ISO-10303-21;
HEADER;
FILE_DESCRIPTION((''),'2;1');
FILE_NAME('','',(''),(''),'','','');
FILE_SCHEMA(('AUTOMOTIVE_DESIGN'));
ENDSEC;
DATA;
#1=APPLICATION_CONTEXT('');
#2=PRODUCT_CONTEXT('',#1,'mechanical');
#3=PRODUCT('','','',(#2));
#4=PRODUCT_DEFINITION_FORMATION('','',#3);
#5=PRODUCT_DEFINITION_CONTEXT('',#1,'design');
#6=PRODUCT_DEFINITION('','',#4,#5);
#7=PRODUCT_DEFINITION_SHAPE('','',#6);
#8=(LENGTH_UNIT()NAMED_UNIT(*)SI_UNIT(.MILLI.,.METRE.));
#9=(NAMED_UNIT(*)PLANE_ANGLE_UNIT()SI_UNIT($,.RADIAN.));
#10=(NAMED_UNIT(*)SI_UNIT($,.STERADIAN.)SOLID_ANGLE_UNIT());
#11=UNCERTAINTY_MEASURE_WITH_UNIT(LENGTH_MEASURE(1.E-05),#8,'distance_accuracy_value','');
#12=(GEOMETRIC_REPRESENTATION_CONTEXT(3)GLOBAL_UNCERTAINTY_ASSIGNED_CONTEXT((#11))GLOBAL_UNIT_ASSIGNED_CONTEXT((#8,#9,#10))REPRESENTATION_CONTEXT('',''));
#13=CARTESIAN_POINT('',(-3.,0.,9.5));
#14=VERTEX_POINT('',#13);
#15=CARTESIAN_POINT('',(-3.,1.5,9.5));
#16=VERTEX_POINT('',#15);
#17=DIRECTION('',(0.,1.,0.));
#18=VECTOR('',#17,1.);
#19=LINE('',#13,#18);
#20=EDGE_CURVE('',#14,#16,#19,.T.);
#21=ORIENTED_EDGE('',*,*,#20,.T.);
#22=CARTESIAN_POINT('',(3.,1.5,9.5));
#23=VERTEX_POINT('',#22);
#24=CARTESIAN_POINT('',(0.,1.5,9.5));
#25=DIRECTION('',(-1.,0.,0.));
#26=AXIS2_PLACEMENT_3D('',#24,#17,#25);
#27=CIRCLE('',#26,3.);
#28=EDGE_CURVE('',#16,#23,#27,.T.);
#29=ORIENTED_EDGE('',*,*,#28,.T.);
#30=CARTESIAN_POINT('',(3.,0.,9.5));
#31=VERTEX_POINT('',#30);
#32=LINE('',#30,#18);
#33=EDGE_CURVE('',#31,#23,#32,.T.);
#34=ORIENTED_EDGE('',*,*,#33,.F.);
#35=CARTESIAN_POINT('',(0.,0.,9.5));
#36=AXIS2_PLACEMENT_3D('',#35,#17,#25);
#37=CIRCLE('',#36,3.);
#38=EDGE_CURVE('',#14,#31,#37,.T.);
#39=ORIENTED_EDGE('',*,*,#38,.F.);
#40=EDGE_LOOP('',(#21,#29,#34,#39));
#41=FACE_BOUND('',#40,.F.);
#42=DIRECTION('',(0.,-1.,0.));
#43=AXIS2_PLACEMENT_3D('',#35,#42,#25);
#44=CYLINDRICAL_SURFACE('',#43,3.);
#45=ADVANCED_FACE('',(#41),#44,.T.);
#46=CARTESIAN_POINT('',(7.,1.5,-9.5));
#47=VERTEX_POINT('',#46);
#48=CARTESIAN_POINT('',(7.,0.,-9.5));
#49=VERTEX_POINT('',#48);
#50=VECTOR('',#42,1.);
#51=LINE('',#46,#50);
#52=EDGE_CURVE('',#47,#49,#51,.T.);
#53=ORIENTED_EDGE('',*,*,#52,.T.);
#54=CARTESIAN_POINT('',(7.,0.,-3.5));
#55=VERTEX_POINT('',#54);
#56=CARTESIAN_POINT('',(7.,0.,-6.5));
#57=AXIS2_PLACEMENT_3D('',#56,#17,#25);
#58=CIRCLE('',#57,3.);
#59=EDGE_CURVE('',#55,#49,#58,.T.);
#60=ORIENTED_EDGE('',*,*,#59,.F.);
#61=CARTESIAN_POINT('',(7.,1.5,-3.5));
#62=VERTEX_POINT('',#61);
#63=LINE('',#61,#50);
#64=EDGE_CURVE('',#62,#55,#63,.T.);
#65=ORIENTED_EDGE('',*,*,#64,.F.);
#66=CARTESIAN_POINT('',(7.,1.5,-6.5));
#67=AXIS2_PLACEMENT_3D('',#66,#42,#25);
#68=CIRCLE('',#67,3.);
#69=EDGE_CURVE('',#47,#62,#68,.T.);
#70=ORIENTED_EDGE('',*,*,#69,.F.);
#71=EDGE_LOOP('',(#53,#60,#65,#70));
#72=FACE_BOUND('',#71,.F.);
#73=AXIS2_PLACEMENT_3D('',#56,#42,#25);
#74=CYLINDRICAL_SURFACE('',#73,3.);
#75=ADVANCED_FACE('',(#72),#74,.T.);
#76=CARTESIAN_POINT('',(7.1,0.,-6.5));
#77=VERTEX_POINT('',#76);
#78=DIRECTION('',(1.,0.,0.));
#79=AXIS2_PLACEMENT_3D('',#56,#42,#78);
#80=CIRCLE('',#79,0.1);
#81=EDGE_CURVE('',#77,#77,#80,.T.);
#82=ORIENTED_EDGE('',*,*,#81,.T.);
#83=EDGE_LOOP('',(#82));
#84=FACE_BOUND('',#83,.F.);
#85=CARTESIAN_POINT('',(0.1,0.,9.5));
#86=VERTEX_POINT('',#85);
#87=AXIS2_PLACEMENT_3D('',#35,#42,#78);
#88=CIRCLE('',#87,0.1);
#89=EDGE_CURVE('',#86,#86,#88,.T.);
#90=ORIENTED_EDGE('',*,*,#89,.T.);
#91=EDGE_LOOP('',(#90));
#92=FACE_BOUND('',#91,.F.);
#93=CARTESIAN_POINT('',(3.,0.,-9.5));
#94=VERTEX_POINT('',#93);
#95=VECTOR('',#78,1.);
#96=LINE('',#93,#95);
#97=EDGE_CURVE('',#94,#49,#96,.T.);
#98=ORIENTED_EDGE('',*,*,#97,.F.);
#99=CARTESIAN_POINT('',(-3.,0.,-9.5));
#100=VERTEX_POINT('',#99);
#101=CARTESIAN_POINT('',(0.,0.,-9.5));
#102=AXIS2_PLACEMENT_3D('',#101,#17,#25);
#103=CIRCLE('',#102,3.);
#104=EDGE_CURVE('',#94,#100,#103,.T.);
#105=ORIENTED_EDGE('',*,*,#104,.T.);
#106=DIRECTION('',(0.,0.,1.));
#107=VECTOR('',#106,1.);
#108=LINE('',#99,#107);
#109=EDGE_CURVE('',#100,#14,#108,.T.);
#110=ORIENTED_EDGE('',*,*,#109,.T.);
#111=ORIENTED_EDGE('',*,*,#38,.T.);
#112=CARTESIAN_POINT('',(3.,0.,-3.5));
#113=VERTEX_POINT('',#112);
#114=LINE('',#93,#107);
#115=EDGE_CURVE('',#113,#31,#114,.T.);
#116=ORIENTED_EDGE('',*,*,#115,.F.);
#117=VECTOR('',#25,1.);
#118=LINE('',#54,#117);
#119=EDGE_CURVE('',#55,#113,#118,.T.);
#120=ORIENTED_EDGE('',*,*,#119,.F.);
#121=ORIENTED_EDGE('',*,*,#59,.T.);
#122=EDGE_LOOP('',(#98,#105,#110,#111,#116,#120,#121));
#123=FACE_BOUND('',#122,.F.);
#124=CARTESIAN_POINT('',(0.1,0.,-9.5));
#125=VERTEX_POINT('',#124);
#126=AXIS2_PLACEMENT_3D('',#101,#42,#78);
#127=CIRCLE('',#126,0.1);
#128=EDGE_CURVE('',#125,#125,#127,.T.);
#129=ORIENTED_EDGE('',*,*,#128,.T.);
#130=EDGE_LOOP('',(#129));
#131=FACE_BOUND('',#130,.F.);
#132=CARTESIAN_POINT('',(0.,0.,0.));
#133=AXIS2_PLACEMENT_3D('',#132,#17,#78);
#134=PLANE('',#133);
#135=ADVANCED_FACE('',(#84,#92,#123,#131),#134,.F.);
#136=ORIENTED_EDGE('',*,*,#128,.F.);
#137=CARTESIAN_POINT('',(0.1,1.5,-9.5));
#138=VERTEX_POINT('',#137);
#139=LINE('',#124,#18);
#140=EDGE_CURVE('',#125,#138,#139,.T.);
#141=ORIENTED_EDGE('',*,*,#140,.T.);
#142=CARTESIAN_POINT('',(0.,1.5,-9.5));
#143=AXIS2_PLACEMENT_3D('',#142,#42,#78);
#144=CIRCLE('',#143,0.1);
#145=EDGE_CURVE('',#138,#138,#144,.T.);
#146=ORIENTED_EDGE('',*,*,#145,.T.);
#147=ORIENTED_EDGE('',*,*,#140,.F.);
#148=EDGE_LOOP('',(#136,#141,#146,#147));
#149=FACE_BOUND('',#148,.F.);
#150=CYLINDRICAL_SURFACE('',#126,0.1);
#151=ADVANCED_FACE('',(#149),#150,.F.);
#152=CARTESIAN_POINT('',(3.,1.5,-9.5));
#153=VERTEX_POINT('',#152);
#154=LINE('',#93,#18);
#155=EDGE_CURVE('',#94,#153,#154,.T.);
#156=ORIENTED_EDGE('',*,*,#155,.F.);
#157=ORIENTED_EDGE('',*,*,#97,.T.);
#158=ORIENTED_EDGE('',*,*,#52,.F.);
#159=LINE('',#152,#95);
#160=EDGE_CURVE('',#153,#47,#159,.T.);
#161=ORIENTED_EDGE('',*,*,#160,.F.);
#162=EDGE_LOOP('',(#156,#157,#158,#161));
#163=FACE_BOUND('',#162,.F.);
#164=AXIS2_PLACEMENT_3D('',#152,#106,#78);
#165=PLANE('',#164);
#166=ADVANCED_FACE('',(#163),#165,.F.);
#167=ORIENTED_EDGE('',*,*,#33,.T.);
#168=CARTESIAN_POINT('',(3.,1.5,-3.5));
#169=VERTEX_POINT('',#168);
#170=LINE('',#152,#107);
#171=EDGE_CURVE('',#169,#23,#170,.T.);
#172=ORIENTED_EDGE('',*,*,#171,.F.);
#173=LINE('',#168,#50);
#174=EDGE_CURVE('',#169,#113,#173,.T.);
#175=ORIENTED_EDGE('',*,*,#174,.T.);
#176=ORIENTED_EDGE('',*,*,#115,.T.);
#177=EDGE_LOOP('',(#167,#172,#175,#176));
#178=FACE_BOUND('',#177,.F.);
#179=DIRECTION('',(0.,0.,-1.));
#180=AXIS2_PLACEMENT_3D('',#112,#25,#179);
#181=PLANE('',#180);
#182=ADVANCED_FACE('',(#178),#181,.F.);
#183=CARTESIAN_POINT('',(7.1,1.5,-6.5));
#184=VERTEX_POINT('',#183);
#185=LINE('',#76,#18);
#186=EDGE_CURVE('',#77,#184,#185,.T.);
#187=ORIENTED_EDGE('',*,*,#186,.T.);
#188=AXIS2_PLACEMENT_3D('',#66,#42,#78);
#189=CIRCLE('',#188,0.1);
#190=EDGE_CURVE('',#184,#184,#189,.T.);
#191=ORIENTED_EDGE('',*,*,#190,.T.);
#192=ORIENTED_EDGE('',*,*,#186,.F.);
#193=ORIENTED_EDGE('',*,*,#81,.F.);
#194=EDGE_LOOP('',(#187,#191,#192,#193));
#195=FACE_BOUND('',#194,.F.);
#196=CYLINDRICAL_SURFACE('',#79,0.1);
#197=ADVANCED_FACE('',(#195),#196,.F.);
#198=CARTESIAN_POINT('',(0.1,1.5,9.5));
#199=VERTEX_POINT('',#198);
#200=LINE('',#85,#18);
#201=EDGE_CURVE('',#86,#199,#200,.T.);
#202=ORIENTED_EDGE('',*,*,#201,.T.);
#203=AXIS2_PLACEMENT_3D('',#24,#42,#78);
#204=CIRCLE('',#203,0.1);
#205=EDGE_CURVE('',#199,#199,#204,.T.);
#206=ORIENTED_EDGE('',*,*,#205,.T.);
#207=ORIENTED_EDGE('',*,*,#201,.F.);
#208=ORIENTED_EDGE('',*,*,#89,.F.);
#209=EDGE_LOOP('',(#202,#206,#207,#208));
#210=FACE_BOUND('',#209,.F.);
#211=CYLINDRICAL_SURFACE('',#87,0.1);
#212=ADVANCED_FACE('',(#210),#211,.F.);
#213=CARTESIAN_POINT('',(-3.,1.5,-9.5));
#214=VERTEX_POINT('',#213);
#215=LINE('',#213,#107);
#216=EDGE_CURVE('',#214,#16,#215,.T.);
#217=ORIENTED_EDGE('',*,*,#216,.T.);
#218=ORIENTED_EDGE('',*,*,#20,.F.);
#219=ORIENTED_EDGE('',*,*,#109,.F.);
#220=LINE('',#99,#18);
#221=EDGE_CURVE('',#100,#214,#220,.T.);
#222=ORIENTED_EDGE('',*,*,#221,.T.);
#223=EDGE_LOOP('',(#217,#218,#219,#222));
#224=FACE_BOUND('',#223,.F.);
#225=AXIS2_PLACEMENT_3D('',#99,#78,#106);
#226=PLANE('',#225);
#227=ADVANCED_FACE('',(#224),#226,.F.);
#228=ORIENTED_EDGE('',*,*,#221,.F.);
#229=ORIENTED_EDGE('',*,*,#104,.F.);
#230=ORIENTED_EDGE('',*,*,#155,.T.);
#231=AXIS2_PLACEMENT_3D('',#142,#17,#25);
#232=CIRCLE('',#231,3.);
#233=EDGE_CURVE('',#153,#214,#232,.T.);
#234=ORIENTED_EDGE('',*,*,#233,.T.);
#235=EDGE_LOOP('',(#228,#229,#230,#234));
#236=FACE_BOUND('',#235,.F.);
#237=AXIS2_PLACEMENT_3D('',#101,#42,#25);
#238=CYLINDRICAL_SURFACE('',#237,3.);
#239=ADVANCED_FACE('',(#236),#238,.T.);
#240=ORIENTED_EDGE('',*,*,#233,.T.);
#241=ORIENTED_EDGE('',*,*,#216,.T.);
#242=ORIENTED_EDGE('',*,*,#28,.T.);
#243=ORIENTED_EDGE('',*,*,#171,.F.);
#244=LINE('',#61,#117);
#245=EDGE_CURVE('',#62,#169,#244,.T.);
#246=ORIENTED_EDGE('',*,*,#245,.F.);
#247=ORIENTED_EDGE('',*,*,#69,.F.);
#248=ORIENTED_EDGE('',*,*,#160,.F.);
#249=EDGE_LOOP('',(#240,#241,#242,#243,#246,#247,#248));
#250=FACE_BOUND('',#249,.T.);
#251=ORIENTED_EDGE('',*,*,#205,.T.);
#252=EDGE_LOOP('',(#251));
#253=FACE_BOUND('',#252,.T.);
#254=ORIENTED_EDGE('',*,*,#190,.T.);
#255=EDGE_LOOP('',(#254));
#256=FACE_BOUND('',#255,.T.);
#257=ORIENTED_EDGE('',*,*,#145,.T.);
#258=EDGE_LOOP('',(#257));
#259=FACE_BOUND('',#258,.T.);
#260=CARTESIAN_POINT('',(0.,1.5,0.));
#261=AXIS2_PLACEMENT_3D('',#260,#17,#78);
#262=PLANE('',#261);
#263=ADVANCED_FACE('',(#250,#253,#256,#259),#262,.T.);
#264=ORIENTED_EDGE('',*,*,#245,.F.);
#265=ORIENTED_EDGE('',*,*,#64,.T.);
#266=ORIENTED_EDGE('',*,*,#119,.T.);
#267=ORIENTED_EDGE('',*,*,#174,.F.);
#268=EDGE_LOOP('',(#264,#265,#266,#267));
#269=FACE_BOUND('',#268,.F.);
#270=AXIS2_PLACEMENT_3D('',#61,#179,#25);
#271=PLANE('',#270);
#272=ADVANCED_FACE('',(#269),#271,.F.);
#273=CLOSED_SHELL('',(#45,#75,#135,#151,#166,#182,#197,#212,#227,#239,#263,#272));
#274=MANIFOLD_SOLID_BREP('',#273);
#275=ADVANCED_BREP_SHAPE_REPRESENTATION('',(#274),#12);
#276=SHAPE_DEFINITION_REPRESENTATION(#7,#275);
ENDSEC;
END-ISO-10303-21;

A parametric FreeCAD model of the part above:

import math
import FreeCAD as App
import Part
import Sketcher


def add_polygon(sketch, points):
    """Adds a closed chain of lines whose ends are joined by coincident constraints."""
    first, n = sketch.GeometryCount, len(points)
    for a, b in zip(points, points[1:] + points[:1]):
        sketch.addGeometry(Part.LineSegment(App.Vector(*a, 0), App.Vector(*b, 0)), False)
    for i in range(n):
        sketch.addConstraint(Sketcher.Constraint("Coincident", first + i, 2, first + (i + 1) % n, 1))

doc = App.newDocument("Part")
params = doc.addObject("Spreadsheet::Sheet", "Params")
for row, (alias, value) in enumerate([
    ("sketch1_diameter", "6 mm"),
    ("sketch1_height", "19 mm"),
    ("pad1_length", "1.5 mm"),
    ("sketch2_diameter", "3 mm"),
    ("sketch2_width", "4 mm"),
    ("sketch2_height", "6 mm"),
    ("pocket1_length", "1.5 mm"),
    ("sketch3_width", "4 mm"),
    ("sketch3_height", "6 mm"),
    ("pad2_length", "1.5 mm"),
    ("sketch4_diameter", "3 mm"),
    ("pocket2_length", "1.5 mm"),
    ("sketch5_diameter", "0.2 mm"),
    ("sketch5_diameter2", "3 mm"),
    ("pad3_length", "1.5 mm"),
], start=1):
    params.set(f"A{row}", alias)
    params.set(f"B{row}", "=" + value)
    params.setAlias(f"B{row}", alias)

body = doc.addObject("PartDesign::Body", "Body")
body.AllowCompound = True

sketch1 = body.newObject("Sketcher::SketchObject", "Sketch")
sketch1.AttachmentSupport = (doc.getObject("XZ_Plane"), [""])
sketch1.MapMode = "FlatFace"
sketch1.addGeometry(Part.LineSegment(App.Vector(-3, -9.5, 0), App.Vector(-3, 9.5, 0)), False)
sketch1.addGeometry(Part.ArcOfCircle(Part.Circle(App.Vector(0, 9.5, 0), App.Vector(0, 0, 1), 3), math.radians(0), math.radians(180)), False)
sketch1.addGeometry(Part.LineSegment(App.Vector(3, 9.5, 0), App.Vector(3, -9.5, 0)), False)
sketch1.addGeometry(Part.ArcOfCircle(Part.Circle(App.Vector(0, -9.5, 0), App.Vector(0, 0, 1), 3), math.radians(180), math.radians(360)), False)
sketch1.addGeometry(Part.Circle(App.Vector(7, -6.5, 0), App.Vector(0, 0, 1), 3), False)
sketch1.addConstraint(Sketcher.Constraint("Tangent", 0, 2, 1, 2))
sketch1.addConstraint(Sketcher.Constraint("Tangent", 1, 1, 2, 1))
sketch1.addConstraint(Sketcher.Constraint("Tangent", 2, 2, 3, 2))
sketch1.addConstraint(Sketcher.Constraint("Tangent", 3, 1, 0, 1))
sketch1.addConstraint(Sketcher.Constraint("Vertical", 0))
sketch1.addConstraint(Sketcher.Constraint("Vertical", 2))
sketch1.addConstraint(Sketcher.Constraint("Equal", 3, 4))
sketch1.addConstraint(Sketcher.Constraint("Symmetric", 1, 3, 3, 3, -1, 1))
sketch1.addConstraint(Sketcher.Constraint("Diameter", 4, 6.0))
sketch1.addConstraint(Sketcher.Constraint("DistanceY", 0, 1, 0, 2, 19.0))
sketch1.addConstraint(Sketcher.Constraint("DistanceY", 3, 3, 4, 3, 3.0))
sketch1.addConstraint(Sketcher.Constraint("DistanceX", 1, 1, 4, 3, 4.0))
sketch1.setExpression("Constraints[8]", "Params.sketch1_diameter")
sketch1.setExpression("Constraints[9]", "Params.sketch1_height")
pad1 = body.newObject("PartDesign::Pad", "Pad")
pad1.Profile = sketch1
pad1.setExpression("Length", "Params.pad1_length")
pad1.Reversed = True

sketch2 = body.newObject("Sketcher::SketchObject", "Sketch001")
sketch2.AttachmentSupport = (doc.getObject("XZ_Plane"), [""])
sketch2.MapMode = "FlatFace"
sketch2.AttachmentOffset = App.Placement(App.Vector(0, 0, -1.5), App.Rotation())
add_polygon(sketch2, [(3, -9.5), (3, -3.5), (7, -3.5), (7, -9.5)])
sketch2.addGeometry(Part.Circle(App.Vector(0, -9.5, 0), App.Vector(0, 0, 1), 1.5), False)
sketch2.addGeometry(Part.Circle(App.Vector(0, 9.5, 0), App.Vector(0, 0, 1), 1.5), False)
sketch2.addConstraint(Sketcher.Constraint("Vertical", 0))
sketch2.addConstraint(Sketcher.Constraint("Horizontal", 1))
sketch2.addConstraint(Sketcher.Constraint("Vertical", 2))
sketch2.addConstraint(Sketcher.Constraint("Horizontal", 3))
sketch2.addConstraint(Sketcher.Constraint("Equal", 4, 5))
sketch2.addConstraint(Sketcher.Constraint("Symmetric", 4, 3, 5, 3, -1, 1))
sketch2.addConstraint(Sketcher.Constraint("PointOnObject", 4, 3, -2))
sketch2.addConstraint(Sketcher.Constraint("Horizontal", 4, 3, 2, 2))
sketch2.addConstraint(Sketcher.Constraint("Diameter", 4, 3.0))
sketch2.addConstraint(Sketcher.Constraint("DistanceX", 1, 1, 1, 2, 4.0))
sketch2.addConstraint(Sketcher.Constraint("DistanceY", 0, 1, 0, 2, 6.0))
sketch2.addConstraint(Sketcher.Constraint("DistanceX", -1, 1, 0, 2, 3.0))
sketch2.addConstraint(Sketcher.Constraint("DistanceY", 4, 3, 5, 3, 19.0))
sketch2.setExpression("Constraints[12]", "Params.sketch2_diameter")
sketch2.setExpression("Constraints[13]", "Params.sketch2_width")
sketch2.setExpression("Constraints[14]", "Params.sketch2_height")
pocket1 = body.newObject("PartDesign::Pocket", "Pocket")
pocket1.Profile = sketch2
pocket1.setExpression("Length", "Params.pocket1_length")
pocket1.Reversed = True

sketch3 = body.newObject("Sketcher::SketchObject", "Sketch002")
sketch3.AttachmentSupport = (doc.getObject("XZ_Plane"), [""])
sketch3.MapMode = "FlatFace"
sketch3.AttachmentOffset = App.Placement(App.Vector(0, 0, -1.5), App.Rotation())
add_polygon(sketch3, [(3, -9.5), (3, -3.5), (7, -3.5), (7, -9.5)])
sketch3.addConstraint(Sketcher.Constraint("Vertical", 0))
sketch3.addConstraint(Sketcher.Constraint("Horizontal", 1))
sketch3.addConstraint(Sketcher.Constraint("Vertical", 2))
sketch3.addConstraint(Sketcher.Constraint("Horizontal", 3))
sketch3.addConstraint(Sketcher.Constraint("DistanceX", 1, 1, 1, 2, 4.0))
sketch3.addConstraint(Sketcher.Constraint("DistanceY", 0, 1, 0, 2, 6.0))
sketch3.addConstraint(Sketcher.Constraint("DistanceX", -1, 1, 0, 2, 3.0))
sketch3.addConstraint(Sketcher.Constraint("DistanceY", 0, 2, -1, 1, 3.5))
sketch3.setExpression("Constraints[8]", "Params.sketch3_width")
sketch3.setExpression("Constraints[9]", "Params.sketch3_height")
pad2 = body.newObject("PartDesign::Pad", "Pad001")
pad2.Profile = sketch3
pad2.setExpression("Length", "Params.pad2_length")

sketch4 = body.newObject("Sketcher::SketchObject", "Sketch003")
sketch4.AttachmentSupport = (doc.getObject("XZ_Plane"), [""])
sketch4.MapMode = "FlatFace"
sketch4.AttachmentOffset = App.Placement(App.Vector(0, 0, -1.5), App.Rotation())
sketch4.addGeometry(Part.Circle(App.Vector(7, -6.5, 0), App.Vector(0, 0, 1), 1.5), False)
sketch4.addConstraint(Sketcher.Constraint("Diameter", 0, 3.0))
sketch4.addConstraint(Sketcher.Constraint("DistanceX", -1, 1, 0, 3, 7.0))
sketch4.addConstraint(Sketcher.Constraint("DistanceY", 0, 3, -1, 1, 6.5))
sketch4.setExpression("Constraints[0]", "Params.sketch4_diameter")
pocket2 = body.newObject("PartDesign::Pocket", "Pocket001")
pocket2.Profile = sketch4
pocket2.setExpression("Length", "Params.pocket2_length")
pocket2.Reversed = True

sketch5 = body.newObject("Sketcher::SketchObject", "Sketch004")
sketch5.AttachmentSupport = (doc.getObject("XZ_Plane"), [""])
sketch5.MapMode = "FlatFace"
sketch5.addGeometry(Part.Circle(App.Vector(7, -6.5, 0), App.Vector(0, 0, 1), 1.5), False)
sketch5.addGeometry(Part.Circle(App.Vector(7, -6.5, 0), App.Vector(0, 0, 1), 0.1), False)
sketch5.addGeometry(Part.Circle(App.Vector(0, 9.5, 0), App.Vector(0, 0, 1), 1.5), False)
sketch5.addGeometry(Part.Circle(App.Vector(0, 9.5, 0), App.Vector(0, 0, 1), 0.1), False)
sketch5.addGeometry(Part.Circle(App.Vector(0, -9.5, 0), App.Vector(0, 0, 1), 1.5), False)
sketch5.addGeometry(Part.Circle(App.Vector(0, -9.5, 0), App.Vector(0, 0, 1), 0.1), False)
sketch5.addConstraint(Sketcher.Constraint("Coincident", 1, 3, 0, 3))
sketch5.addConstraint(Sketcher.Constraint("Coincident", 3, 3, 2, 3))
sketch5.addConstraint(Sketcher.Constraint("Coincident", 5, 3, 4, 3))
sketch5.addConstraint(Sketcher.Constraint("Equal", 0, 2))
sketch5.addConstraint(Sketcher.Constraint("Equal", 1, 3))
sketch5.addConstraint(Sketcher.Constraint("Equal", 2, 4))
sketch5.addConstraint(Sketcher.Constraint("Equal", 3, 5))
sketch5.addConstraint(Sketcher.Constraint("Symmetric", 2, 3, 4, 3, -1, 1))
sketch5.addConstraint(Sketcher.Constraint("PointOnObject", 2, 3, -2))
sketch5.addConstraint(Sketcher.Constraint("Diameter", 1, 0.2))
sketch5.addConstraint(Sketcher.Constraint("Diameter", 0, 3.0))
sketch5.addConstraint(Sketcher.Constraint("DistanceX", -1, 1, 0, 3, 7.0))
sketch5.addConstraint(Sketcher.Constraint("DistanceY", 0, 3, 2, 3, 16.0))
sketch5.addConstraint(Sketcher.Constraint("DistanceY", 4, 3, 0, 3, 3.0))
sketch5.setExpression("Constraints[9]", "Params.sketch5_diameter")
sketch5.setExpression("Constraints[10]", "Params.sketch5_diameter2")
pad3 = body.newObject("PartDesign::Pad", "Pad002")
pad3.Profile = sketch5
pad3.setExpression("Length", "Params.pad3_length")
pad3.Reversed = True

doc.recompute()
